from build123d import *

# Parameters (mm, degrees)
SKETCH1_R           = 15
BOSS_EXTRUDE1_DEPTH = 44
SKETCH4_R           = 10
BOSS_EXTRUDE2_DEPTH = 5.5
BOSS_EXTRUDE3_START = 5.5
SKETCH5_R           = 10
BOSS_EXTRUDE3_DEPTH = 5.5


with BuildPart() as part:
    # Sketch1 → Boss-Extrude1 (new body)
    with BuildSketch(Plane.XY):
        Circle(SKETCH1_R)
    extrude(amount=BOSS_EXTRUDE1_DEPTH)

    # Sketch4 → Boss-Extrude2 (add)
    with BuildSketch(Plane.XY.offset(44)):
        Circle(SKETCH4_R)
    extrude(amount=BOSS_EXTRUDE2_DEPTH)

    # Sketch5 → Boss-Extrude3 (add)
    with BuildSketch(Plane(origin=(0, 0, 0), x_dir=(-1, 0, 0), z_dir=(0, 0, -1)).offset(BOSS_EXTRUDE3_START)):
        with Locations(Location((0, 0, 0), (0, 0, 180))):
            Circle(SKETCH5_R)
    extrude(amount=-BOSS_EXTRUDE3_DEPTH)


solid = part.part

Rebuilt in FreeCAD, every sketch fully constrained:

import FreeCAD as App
import Part
import Sketcher

V = App.Vector

doc = App.newDocument("Part")
params = doc.addObject("Spreadsheet::Sheet", "Params")
for row, (alias, value) in enumerate([
    ("sketch1_diameter", "30 mm"),
    ("pad1_length", "44 mm"),
    ("sketch2_diameter", "20 mm"),
    ("pad2_length", "5.5 mm"),
    ("sketch3_diameter", "20 mm"),
    ("pad3_length", "5.5 mm"),
], start=1):
    params.set(f"A{row}", alias)
    params.set(f"B{row}", "=" + value)
    params.setAlias(f"B{row}", alias)

body = doc.addObject("PartDesign::Body", "Body")

sketch1 = doc.addObject("Sketcher::SketchObject", "Sketch")
body.addObject(sketch1)
sketch1.AttachmentSupport = (doc.XY_Plane, [""])
sketch1.MapMode = "FlatFace"
sketch1.addGeometry(Part.Circle(V(0, 0, 0), V(0, 0, 1), 15), False)
sketch1.addConstraint(Sketcher.Constraint("Coincident", 0, 3, -1, 1))
sketch1.addConstraint(Sketcher.Constraint("Diameter", 0, 30.0))
sketch1.setExpression("Constraints[1]", "Params.sketch1_diameter")
pad1 = doc.addObject("PartDesign::Pad", "Pad")
body.addObject(pad1)
pad1.Profile = sketch1
pad1.setExpression("Length", "Params.pad1_length")

sketch2 = doc.addObject("Sketcher::SketchObject", "Sketch001")
body.addObject(sketch2)
sketch2.AttachmentSupport = (doc.XY_Plane, [""])
sketch2.MapMode = "FlatFace"
sketch2.AttachmentOffset = App.Placement(V(0, 0, 44), App.Rotation())
sketch2.addGeometry(Part.Circle(V(0, 0, 0), V(0, 0, 1), 10), False)
sketch2.addConstraint(Sketcher.Constraint("Coincident", 0, 3, -1, 1))
sketch2.addConstraint(Sketcher.Constraint("Diameter", 0, 20.0))
sketch2.setExpression("Constraints[1]", "Params.sketch2_diameter")
pad2 = doc.addObject("PartDesign::Pad", "Pad001")
body.addObject(pad2)
pad2.Profile = sketch2
pad2.setExpression("Length", "Params.pad2_length")

sketch3 = doc.addObject("Sketcher::SketchObject", "Sketch002")
body.addObject(sketch3)
sketch3.AttachmentSupport = (doc.XY_Plane, [""])
sketch3.MapMode = "FlatFace"
sketch3.AttachmentOffset = App.Placement(V(0, 0, -5.5), App.Rotation())
sketch3.addGeometry(Part.Circle(V(0, 0, 0), V(0, 0, 1), 10), False)
sketch3.addConstraint(Sketcher.Constraint("Coincident", 0, 3, -1, 1))
sketch3.addConstraint(Sketcher.Constraint("Diameter", 0, 20.0))
sketch3.setExpression("Constraints[1]", "Params.sketch3_diameter")
pad3 = doc.addObject("PartDesign::Pad", "Pad002")
body.addObject(pad3)
pad3.Profile = sketch3
pad3.setExpression("Length", "Params.pad3_length")

doc.recompute()
